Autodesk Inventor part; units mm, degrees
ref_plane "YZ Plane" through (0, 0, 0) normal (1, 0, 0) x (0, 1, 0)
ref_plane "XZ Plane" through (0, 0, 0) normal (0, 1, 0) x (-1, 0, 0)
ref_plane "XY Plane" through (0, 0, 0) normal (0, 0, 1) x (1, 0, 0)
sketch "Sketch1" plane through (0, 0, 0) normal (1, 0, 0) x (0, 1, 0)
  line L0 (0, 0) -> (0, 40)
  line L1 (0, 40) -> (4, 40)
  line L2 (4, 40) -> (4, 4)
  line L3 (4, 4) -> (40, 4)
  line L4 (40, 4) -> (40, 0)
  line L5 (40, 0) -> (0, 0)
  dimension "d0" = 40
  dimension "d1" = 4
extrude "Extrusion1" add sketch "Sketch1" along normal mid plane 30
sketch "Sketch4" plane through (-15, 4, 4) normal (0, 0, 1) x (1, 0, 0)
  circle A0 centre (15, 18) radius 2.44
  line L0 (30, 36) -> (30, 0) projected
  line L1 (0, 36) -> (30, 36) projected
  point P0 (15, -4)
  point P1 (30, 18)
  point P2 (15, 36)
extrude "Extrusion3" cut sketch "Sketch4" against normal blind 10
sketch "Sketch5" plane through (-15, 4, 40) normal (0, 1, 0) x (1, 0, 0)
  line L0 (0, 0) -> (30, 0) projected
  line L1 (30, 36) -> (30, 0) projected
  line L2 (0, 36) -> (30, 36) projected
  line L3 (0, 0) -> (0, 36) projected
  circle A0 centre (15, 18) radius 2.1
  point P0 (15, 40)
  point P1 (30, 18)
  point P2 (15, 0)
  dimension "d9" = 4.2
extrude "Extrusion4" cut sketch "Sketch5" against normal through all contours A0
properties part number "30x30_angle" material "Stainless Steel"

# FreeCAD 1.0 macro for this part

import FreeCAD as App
import Part
import Sketcher
from FreeCAD import Vector

doc = App.newDocument("Part")
body = doc.addObject("PartDesign::Body", "Body")

sketch1 = body.newObject("Sketcher::SketchObject", "Sketch")
sketch1.AttachmentSupport = (doc.getObject("YZ_Plane"), [""])
sketch1.MapMode = "FlatFace"
sketch1.addGeometry([
    Part.LineSegment(Vector(0, 40, 0), Vector(0, 0, 0)),
    Part.LineSegment(Vector(0, 0, 0), Vector(40, 0, 0)),
    Part.LineSegment(Vector(40, 0, 0), Vector(40, 4, 0)),
    Part.LineSegment(Vector(40, 4, 0), Vector(4, 4, 0)),
    Part.LineSegment(Vector(4, 4, 0), Vector(4, 40, 0)),
    Part.LineSegment(Vector(4, 40, 0), Vector(0, 40, 0)),
], False)
sketch1.addConstraint([
    Sketcher.Constraint("Coincident", 0, 2, 1, 1),
    Sketcher.Constraint("Coincident", 1, 2, 2, 1),
    Sketcher.Constraint("Coincident", 2, 2, 3, 1),
    Sketcher.Constraint("Coincident", 3, 2, 4, 1),
    Sketcher.Constraint("Coincident", 4, 2, 5, 1),
    Sketcher.Constraint("Coincident", 5, 2, 0, 1),
    Sketcher.Constraint("Vertical", 0),
    Sketcher.Constraint("Horizontal", 1),
    Sketcher.Constraint("Vertical", 2),
    Sketcher.Constraint("Horizontal", 3),
    Sketcher.Constraint("Vertical", 4),
    Sketcher.Constraint("Horizontal", 5),
    Sketcher.Constraint("Coincident", 0, 2, -1, 1),
    Sketcher.Constraint("Equal", 1, 0),
    Sketcher.Constraint("Equal", 5, 2),
    Sketcher.Constraint("DistanceX", 1, 1, 1, 2, 40.0),
    Sketcher.Constraint("DistanceX", 5, 2, 5, 1, 4.0),
])
pad1 = body.newObject("PartDesign::Pad", "Pad")
pad1.Profile = sketch1
pad1.Length = 30
pad1.Midplane = True

sketch2 = body.newObject("Sketcher::SketchObject", "Sketch001")
sketch2.AttachmentSupport = (doc.getObject("XY_Plane"), [""])
sketch2.MapMode = "FlatFace"
sketch2.AttachmentOffset = App.Placement(Vector(0, 0, 4), App.Rotation())
sketch2.addGeometry(Part.Circle(Vector(0, 22, 0), Vector(0, 0, 1), 2.4), False)
sketch2.addConstraint([
    Sketcher.Constraint("PointOnObject", 0, 3, -2),
    Sketcher.Constraint("Diameter", 0, 4.88),
    Sketcher.Constraint("DistanceY", -1, 1, 0, 3, 22.0),
])
pocket1 = body.newObject("PartDesign::Pocket", "Pocket")
pocket1.Profile = sketch2
pocket1.Length = 10

sketch3 = body.newObject("Sketcher::SketchObject", "Sketch002")
sketch3.AttachmentSupport = (doc.getObject("XZ_Plane"), [""])
sketch3.MapMode = "FlatFace"
sketch3.AttachmentOffset = App.Placement(Vector(0, 0, -4), App.Rotation())
sketch3.addGeometry(Part.Circle(Vector(0, 22, 0), Vector(0, 0, 1), 2.1), False)
sketch3.addConstraint([
    Sketcher.Constraint("PointOnObject", 0, 3, -2),
    Sketcher.Constraint("Diameter", 0, 4.2),
    Sketcher.Constraint("DistanceY", -1, 1, 0, 3, 22.0),
])
pocket2 = body.newObject("PartDesign::Pocket", "Pocket001")
pocket2.Profile = sketch3
pocket2.Type = "ThroughAll"
pocket2.Reversed = True

doc.recompute()
